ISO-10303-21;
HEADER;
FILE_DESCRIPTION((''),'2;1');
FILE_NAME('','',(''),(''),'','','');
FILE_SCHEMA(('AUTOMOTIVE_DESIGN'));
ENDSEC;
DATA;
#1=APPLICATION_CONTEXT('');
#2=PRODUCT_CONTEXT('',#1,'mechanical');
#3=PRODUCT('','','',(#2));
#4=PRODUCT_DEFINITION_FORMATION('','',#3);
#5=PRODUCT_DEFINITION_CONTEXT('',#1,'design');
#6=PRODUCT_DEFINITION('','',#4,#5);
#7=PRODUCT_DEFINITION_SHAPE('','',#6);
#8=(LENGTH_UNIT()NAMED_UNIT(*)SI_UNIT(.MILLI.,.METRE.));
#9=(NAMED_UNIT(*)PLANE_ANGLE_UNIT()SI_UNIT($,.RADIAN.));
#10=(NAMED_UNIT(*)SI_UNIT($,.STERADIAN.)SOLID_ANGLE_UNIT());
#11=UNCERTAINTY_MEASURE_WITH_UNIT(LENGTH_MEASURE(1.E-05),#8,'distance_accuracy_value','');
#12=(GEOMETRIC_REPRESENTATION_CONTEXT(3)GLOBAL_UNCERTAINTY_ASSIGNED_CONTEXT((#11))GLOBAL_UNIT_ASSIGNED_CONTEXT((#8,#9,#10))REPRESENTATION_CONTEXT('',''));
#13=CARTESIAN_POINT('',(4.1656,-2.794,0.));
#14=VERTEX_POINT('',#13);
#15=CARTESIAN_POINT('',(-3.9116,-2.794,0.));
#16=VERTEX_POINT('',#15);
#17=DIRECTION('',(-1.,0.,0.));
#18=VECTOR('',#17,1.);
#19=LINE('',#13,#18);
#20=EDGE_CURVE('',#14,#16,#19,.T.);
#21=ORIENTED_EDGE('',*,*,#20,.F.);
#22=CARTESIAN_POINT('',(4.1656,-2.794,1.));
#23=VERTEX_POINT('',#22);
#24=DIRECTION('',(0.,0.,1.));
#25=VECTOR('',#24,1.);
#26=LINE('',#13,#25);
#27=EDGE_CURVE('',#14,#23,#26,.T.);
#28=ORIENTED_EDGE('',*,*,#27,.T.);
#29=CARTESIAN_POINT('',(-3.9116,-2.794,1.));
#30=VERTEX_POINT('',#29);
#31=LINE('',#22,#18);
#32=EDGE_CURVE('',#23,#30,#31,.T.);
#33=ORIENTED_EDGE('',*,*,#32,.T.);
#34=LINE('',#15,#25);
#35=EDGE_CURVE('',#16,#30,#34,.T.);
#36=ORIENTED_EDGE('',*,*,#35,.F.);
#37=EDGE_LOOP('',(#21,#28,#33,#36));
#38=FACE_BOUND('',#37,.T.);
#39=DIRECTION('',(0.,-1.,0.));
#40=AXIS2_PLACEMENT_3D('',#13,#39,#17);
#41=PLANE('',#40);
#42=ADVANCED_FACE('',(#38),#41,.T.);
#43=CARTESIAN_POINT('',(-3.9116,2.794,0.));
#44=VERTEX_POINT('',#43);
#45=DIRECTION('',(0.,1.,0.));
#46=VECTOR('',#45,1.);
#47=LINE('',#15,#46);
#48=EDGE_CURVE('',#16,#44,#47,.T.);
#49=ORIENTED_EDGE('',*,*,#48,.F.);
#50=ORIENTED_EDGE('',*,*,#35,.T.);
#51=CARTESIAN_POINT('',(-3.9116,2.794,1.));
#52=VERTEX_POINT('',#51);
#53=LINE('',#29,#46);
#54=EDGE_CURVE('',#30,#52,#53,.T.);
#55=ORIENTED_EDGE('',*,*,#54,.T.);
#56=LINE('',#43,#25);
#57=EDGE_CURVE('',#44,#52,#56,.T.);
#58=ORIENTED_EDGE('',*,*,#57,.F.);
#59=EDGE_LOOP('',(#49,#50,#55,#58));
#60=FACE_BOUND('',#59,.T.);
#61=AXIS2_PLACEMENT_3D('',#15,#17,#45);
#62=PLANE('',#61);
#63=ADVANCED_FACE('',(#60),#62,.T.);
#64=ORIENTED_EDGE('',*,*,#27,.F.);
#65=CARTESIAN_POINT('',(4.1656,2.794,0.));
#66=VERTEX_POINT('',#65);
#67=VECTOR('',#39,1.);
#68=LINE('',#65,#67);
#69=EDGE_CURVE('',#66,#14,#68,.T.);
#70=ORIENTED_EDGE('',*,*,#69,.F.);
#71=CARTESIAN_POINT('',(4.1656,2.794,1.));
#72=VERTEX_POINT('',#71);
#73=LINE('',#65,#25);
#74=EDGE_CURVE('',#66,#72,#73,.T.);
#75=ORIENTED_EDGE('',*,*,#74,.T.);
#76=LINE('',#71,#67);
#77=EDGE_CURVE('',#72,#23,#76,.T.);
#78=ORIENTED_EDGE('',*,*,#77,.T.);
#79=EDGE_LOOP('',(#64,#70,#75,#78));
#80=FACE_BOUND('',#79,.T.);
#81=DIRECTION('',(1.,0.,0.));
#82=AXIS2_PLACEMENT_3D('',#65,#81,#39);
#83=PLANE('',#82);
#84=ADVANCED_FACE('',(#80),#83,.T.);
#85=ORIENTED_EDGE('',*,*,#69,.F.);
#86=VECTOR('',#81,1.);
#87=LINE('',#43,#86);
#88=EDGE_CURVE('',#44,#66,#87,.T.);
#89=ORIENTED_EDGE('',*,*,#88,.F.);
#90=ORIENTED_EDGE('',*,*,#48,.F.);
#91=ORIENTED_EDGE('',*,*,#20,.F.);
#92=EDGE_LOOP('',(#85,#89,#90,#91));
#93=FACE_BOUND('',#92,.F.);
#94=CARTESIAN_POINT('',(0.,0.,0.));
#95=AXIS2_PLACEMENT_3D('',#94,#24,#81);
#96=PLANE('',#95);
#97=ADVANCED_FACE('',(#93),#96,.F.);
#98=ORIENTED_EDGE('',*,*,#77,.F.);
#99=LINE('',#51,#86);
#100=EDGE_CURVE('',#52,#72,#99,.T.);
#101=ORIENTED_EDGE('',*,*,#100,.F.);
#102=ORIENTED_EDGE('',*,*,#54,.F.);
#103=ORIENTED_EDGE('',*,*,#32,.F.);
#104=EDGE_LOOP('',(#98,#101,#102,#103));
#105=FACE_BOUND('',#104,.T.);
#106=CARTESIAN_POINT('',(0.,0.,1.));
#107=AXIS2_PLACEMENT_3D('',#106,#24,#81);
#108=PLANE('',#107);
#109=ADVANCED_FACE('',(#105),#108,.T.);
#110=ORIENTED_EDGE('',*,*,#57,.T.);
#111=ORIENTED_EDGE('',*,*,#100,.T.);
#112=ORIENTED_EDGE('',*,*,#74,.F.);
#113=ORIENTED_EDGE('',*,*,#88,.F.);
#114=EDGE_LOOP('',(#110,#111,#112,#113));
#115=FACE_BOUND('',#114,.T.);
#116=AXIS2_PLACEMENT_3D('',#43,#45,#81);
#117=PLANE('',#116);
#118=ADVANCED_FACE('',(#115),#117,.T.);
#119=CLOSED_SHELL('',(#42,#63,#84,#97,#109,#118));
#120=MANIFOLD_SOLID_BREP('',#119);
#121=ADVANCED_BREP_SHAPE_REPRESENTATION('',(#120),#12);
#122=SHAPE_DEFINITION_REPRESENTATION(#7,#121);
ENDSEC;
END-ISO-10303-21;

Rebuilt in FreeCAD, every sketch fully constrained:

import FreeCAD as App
import Part
import Sketcher
Q = App.Units.Quantity

doc = App.newDocument("Part")
body = doc.addObject("PartDesign::Body", "Body")

# Sketch on XY plane
sketch1 = body.newObject("Sketcher::SketchObject", "Sketch")
sketch1.AttachmentSupport = (doc.getObject("XY_Plane"), [""])
sketch1.MapMode = "FlatFace"
sketch1.addGeometry(Part.LineSegment(App.Vector(4, 3, 0), App.Vector(-4, 3, 0)), False)
sketch1.addGeometry(Part.LineSegment(App.Vector(-4, 3, 0), App.Vector(-4, -3, 0)), False)
sketch1.addGeometry(Part.LineSegment(App.Vector(-4, -3, 0), App.Vector(4, -3, 0)), False)
sketch1.addGeometry(Part.LineSegment(App.Vector(4, -3, 0), App.Vector(4, 3, 0)), False)
sketch1.addConstraint(Sketcher.Constraint("Coincident", 0, 2, 1, 1))
sketch1.addConstraint(Sketcher.Constraint("Coincident", 1, 2, 2, 1))
sketch1.addConstraint(Sketcher.Constraint("Coincident", 2, 2, 3, 1))
sketch1.addConstraint(Sketcher.Constraint("Coincident", 3, 2, 0, 1))
sketch1.addConstraint(Sketcher.Constraint("Horizontal", 0))
sketch1.addConstraint(Sketcher.Constraint("Vertical", 1))
sketch1.addConstraint(Sketcher.Constraint("Horizontal", 2))
sketch1.addConstraint(Sketcher.Constraint("Vertical", 3))
sketch1.addConstraint(Sketcher.Constraint("DistanceY", 1, 2, 1, 1, Q("0.22 in")))
sketch1.addConstraint(Sketcher.Constraint("DistanceX", 0, 2, 0, 1, Q("0.318 in")))
sketch1.addConstraint(Sketcher.Constraint("DistanceY", -1, 1, 0, 2, Q("0.11 in")))
sketch1.addConstraint(Sketcher.Constraint("DistanceX", 0, 2, -1, 1, Q("0.154 in")))
pad1 = body.newObject("PartDesign::Pad", "Pad")
pad1.Profile = sketch1
pad1.Length = 1

doc.recompute()
